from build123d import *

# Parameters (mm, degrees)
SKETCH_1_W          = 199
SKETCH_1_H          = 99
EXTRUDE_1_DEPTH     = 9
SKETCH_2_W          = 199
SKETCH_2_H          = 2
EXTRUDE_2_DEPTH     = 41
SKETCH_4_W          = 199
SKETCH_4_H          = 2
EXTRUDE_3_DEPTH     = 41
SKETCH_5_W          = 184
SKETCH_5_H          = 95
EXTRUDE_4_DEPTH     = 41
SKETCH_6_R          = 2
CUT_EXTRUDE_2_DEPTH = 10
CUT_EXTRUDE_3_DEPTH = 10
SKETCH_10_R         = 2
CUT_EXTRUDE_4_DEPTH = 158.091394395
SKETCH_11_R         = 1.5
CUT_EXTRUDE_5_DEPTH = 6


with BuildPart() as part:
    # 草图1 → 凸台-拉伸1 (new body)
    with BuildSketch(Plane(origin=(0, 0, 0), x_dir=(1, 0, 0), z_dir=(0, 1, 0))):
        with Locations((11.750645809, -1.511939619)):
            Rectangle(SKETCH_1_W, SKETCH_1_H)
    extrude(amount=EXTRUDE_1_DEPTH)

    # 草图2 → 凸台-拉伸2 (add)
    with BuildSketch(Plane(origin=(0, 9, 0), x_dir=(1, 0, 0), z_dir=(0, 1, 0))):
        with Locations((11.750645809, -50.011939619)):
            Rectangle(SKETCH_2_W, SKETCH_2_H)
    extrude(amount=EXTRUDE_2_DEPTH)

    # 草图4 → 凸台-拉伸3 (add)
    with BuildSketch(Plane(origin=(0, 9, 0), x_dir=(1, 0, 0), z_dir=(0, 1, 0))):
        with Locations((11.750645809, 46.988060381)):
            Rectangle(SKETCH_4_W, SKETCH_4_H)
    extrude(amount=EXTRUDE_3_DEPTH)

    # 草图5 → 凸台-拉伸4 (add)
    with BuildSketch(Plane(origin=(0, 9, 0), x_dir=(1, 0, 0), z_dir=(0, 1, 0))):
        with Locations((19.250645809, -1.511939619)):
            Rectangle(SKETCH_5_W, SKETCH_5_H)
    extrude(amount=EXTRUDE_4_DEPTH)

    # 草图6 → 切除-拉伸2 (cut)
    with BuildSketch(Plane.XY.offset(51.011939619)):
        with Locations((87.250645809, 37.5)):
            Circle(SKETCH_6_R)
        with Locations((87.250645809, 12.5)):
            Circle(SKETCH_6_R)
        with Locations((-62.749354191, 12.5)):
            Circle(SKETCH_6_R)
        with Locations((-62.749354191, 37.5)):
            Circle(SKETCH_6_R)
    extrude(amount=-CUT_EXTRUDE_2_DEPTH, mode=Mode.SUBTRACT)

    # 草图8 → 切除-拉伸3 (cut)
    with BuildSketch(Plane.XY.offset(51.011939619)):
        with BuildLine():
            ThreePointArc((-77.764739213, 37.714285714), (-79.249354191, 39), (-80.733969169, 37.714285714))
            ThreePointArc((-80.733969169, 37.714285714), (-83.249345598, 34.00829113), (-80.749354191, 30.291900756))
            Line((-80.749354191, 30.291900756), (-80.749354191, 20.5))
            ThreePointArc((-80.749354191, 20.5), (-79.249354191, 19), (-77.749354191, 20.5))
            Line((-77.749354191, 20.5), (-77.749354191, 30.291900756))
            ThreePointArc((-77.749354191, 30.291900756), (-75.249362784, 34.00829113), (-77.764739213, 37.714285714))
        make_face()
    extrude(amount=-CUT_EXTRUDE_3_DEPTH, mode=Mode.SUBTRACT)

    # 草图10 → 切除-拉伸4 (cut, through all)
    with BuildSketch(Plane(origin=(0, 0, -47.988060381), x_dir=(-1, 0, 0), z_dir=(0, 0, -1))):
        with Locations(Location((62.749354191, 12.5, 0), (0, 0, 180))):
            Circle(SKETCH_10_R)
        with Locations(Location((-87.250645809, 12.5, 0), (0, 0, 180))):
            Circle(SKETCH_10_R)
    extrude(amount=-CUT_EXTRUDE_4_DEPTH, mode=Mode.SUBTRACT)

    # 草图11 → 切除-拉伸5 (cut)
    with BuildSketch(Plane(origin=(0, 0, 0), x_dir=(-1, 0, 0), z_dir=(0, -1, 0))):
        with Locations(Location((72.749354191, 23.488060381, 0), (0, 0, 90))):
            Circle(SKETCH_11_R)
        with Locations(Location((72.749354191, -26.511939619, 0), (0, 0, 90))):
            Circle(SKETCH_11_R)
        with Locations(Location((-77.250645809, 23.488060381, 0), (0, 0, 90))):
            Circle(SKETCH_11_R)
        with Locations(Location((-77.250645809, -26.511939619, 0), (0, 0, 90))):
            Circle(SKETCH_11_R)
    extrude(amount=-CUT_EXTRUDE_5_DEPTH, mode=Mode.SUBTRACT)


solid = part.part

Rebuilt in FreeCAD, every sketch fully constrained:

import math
import FreeCAD as App
import Part
import Sketcher
Q = App.Units.Quantity

doc = App.newDocument("Part")
body = doc.addObject("PartDesign::Body", "Body")

sketch1 = body.newObject("Sketcher::SketchObject", "Sketch")
sketch1.AttachmentSupport = (doc.getObject("XZ_Plane"), [""])
sketch1.MapMode = "FlatFace"
sketch1.addGeometry([
    Part.LineSegment(App.Vector(-88, -48, 0), App.Vector(-88, 51, 0)),
    Part.LineSegment(App.Vector(-88, 51, 0), App.Vector(111, 51, 0)),
    Part.LineSegment(App.Vector(111, 51, 0), App.Vector(111, -48, 0)),
    Part.LineSegment(App.Vector(111, -48, 0), App.Vector(-88, -48, 0)),
], False)
sketch1.addConstraint([
    Sketcher.Constraint("Coincident", 0, 2, 1, 1),
    Sketcher.Constraint("Coincident", 1, 2, 2, 1),
    Sketcher.Constraint("Coincident", 2, 2, 3, 1),
    Sketcher.Constraint("Coincident", 3, 2, 0, 1),
    Sketcher.Constraint("Vertical", 0),
    Sketcher.Constraint("Horizontal", 1),
    Sketcher.Constraint("Vertical", 2),
    Sketcher.Constraint("Horizontal", 3),
    Sketcher.Constraint("DistanceX", 1, 1, 1, 2, Q("199 mm")),
    Sketcher.Constraint("DistanceY", 0, 1, 0, 2, Q("99 mm")),
    Sketcher.Constraint("DistanceY", -1, 1, 0, 2, Q("51.01194 mm")),
    Sketcher.Constraint("DistanceX", 0, 2, -1, 1, Q("87.749354 mm")),
])
pad1 = body.newObject("PartDesign::Pad", "Pad")
pad1.Profile = sketch1
pad1.Length = 9
pad1.Reversed = True

sketch2 = body.newObject("Sketcher::SketchObject", "Sketch001")
sketch2.AttachmentSupport = (doc.getObject("XZ_Plane"), [""])
sketch2.MapMode = "FlatFace"
sketch2.AttachmentOffset = App.Placement(App.Vector(0, 0, -9), App.Rotation())
sketch2.addGeometry([
    Part.LineSegment(App.Vector(-87.7, 49, 0), App.Vector(-87.7, 51, 0)),
    Part.LineSegment(App.Vector(-87.7, 51, 0), App.Vector(111.3, 51, 0)),
    Part.LineSegment(App.Vector(111.3, 51, 0), App.Vector(111.3, 49, 0)),
    Part.LineSegment(App.Vector(111.3, 49, 0), App.Vector(-87.7, 49, 0)),
], False)
sketch2.addConstraint([
    Sketcher.Constraint("Coincident", 0, 2, 1, 1),
    Sketcher.Constraint("Coincident", 1, 2, 2, 1),
    Sketcher.Constraint("Coincident", 2, 2, 3, 1),
    Sketcher.Constraint("Coincident", 3, 2, 0, 1),
    Sketcher.Constraint("Vertical", 0),
    Sketcher.Constraint("Horizontal", 1),
    Sketcher.Constraint("Vertical", 2),
    Sketcher.Constraint("Horizontal", 3),
    Sketcher.Constraint("DistanceX", 1, 1, 1, 2, Q("199 mm")),
    Sketcher.Constraint("DistanceY", 0, 1, 0, 2, Q("2 mm")),
    Sketcher.Constraint("DistanceY", -1, 1, 0, 2, Q("51.01194 mm")),
    Sketcher.Constraint("DistanceX", 0, 2, -1, 1, Q("87.749354 mm")),
])
pad2 = body.newObject("PartDesign::Pad", "Pad001")
pad2.Profile = sketch2
pad2.Length = 41
pad2.Reversed = True

sketch3 = body.newObject("Sketcher::SketchObject", "Sketch002")
sketch3.AttachmentSupport = (doc.getObject("XZ_Plane"), [""])
sketch3.MapMode = "FlatFace"
sketch3.AttachmentOffset = App.Placement(App.Vector(0, 0, -9), App.Rotation())
sketch3.addGeometry([
    Part.LineSegment(App.Vector(-87.7, -48, 0), App.Vector(-87.7, -46, 0)),
    Part.LineSegment(App.Vector(-87.7, -46, 0), App.Vector(111.3, -46, 0)),
    Part.LineSegment(App.Vector(111.3, -46, 0), App.Vector(111.3, -48, 0)),
    Part.LineSegment(App.Vector(111.3, -48, 0), App.Vector(-87.7, -48, 0)),
], False)
sketch3.addConstraint([
    Sketcher.Constraint("Coincident", 0, 2, 1, 1),
    Sketcher.Constraint("Coincident", 1, 2, 2, 1),
    Sketcher.Constraint("Coincident", 2, 2, 3, 1),
    Sketcher.Constraint("Coincident", 3, 2, 0, 1),
    Sketcher.Constraint("Vertical", 0),
    Sketcher.Constraint("Horizontal", 1),
    Sketcher.Constraint("Vertical", 2),
    Sketcher.Constraint("Horizontal", 3),
    Sketcher.Constraint("DistanceX", 1, 1, 1, 2, Q("199 mm")),
    Sketcher.Constraint("DistanceY", 0, 1, 0, 2, Q("2 mm")),
    Sketcher.Constraint("DistanceY", 0, 2, -1, 1, Q("45.98806 mm")),
    Sketcher.Constraint("DistanceX", 0, 2, -1, 1, Q("87.749354 mm")),
])
pad3 = body.newObject("PartDesign::Pad", "Pad002")
pad3.Profile = sketch3
pad3.Length = 41
pad3.Reversed = True

sketch4 = body.newObject("Sketcher::SketchObject", "Sketch003")
sketch4.AttachmentSupport = (doc.getObject("XZ_Plane"), [""])
sketch4.MapMode = "FlatFace"
sketch4.AttachmentOffset = App.Placement(App.Vector(0, 0, -9), App.Rotation())
sketch4.addGeometry([
    Part.LineSegment(App.Vector(-73, -46, 0), App.Vector(-73, 49, 0)),
    Part.LineSegment(App.Vector(-73, 49, 0), App.Vector(111, 49, 0)),
    Part.LineSegment(App.Vector(111, 49, 0), App.Vector(111, -46, 0)),
    Part.LineSegment(App.Vector(111, -46, 0), App.Vector(-73, -46, 0)),
], False)
sketch4.addConstraint([
    Sketcher.Constraint("Coincident", 0, 2, 1, 1),
    Sketcher.Constraint("Coincident", 1, 2, 2, 1),
    Sketcher.Constraint("Coincident", 2, 2, 3, 1),
    Sketcher.Constraint("Coincident", 3, 2, 0, 1),
    Sketcher.Constraint("Vertical", 0),
    Sketcher.Constraint("Horizontal", 1),
    Sketcher.Constraint("Vertical", 2),
    Sketcher.Constraint("Horizontal", 3),
    Sketcher.Constraint("DistanceX", 1, 1, 1, 2, Q("184 mm")),
    Sketcher.Constraint("DistanceY", 0, 1, 0, 2, Q("95 mm")),
    Sketcher.Constraint("DistanceY", -1, 1, 0, 2, Q("49.01194 mm")),
    Sketcher.Constraint("DistanceX", 0, 2, -1, 1, Q("72.749354 mm")),
])
pad4 = body.newObject("PartDesign::Pad", "Pad003")
pad4.Profile = sketch4
pad4.Length = 41
pad4.Reversed = True

sketch5 = body.newObject("Sketcher::SketchObject", "Sketch004")
sketch5.AttachmentSupport = (doc.getObject("XY_Plane"), [""])
sketch5.MapMode = "FlatFace"
sketch5.AttachmentOffset = App.Placement(App.Vector(0, 0, 51.01194), App.Rotation())
sketch5.addGeometry([
    Part.Circle(App.Vector(87.3, 37.5, 0), App.Vector(0, 0, 1), 2),
    Part.Circle(App.Vector(87.3, 12.5, 0), App.Vector(0, 0, 1), 2),
    Part.Circle(App.Vector(-62.7, 12.5, 0), App.Vector(0, 0, 1), 2),
    Part.Circle(App.Vector(-62.7, 37.5, 0), App.Vector(0, 0, 1), 2),
], False)
sketch5.addConstraint([
    Sketcher.Constraint("Equal", 0, 1),
    Sketcher.Constraint("Equal", 1, 2),
    Sketcher.Constraint("Equal", 2, 3),
    Sketcher.Constraint("Horizontal", 1, 3, 2, 3),
    Sketcher.Constraint("Horizontal", 0, 3, 3, 3),
    Sketcher.Constraint("Vertical", 0, 3, 1, 3),
    Sketcher.Constraint("Vertical", 2, 3, 3, 3),
    Sketcher.Constraint("Diameter", 0, Q("4 mm")),
    Sketcher.Constraint("DistanceY", 1, 3, 0, 3, Q("25 mm")),
    Sketcher.Constraint("DistanceX", 2, 3, 1, 3, Q("150 mm")),
    Sketcher.Constraint("DistanceY", -1, 1, 0, 3, Q("37.5 mm")),
    Sketcher.Constraint("DistanceX", -1, 1, 0, 3, Q("87.250646 mm")),
])
pocket1 = body.newObject("PartDesign::Pocket", "Pocket")
pocket1.Profile = sketch5
pocket1.Length = 10

sketch6 = body.newObject("Sketcher::SketchObject", "Sketch005")
sketch6.AttachmentSupport = (doc.getObject("XY_Plane"), [""])
sketch6.MapMode = "FlatFace"
sketch6.AttachmentOffset = App.Placement(App.Vector(0, 0, 51.01194), App.Rotation())
sketch6.addGeometry([
    Part.ArcOfCircle(Part.Circle(App.Vector(-79.2, 37.5, 0), App.Vector(0, 0, 1), 1.5), math.radians(8), math.radians(172)),
    Part.ArcOfCircle(Part.Circle(App.Vector(-79.2, 34, 0), App.Vector(0, 0, 1), 4), math.radians(112), math.radians(248)),
    Part.LineSegment(App.Vector(-80.7, 30.3, 0), App.Vector(-80.7, 20.5, 0)),
    Part.ArcOfCircle(Part.Circle(App.Vector(-79.2, 20.5, 0), App.Vector(0, 0, 1), 1.5), math.radians(180), math.radians(360)),
    Part.LineSegment(App.Vector(-77.7, 20.5, 0), App.Vector(-77.7, 30.3, 0)),
    Part.ArcOfCircle(Part.Circle(App.Vector(-79.2, 34, 0), App.Vector(0, 0, 1), 4), math.radians(-68), math.radians(68)),
], False)
sketch6.addConstraint([
    Sketcher.Constraint("Coincident", 0, 2, 1, 1),
    Sketcher.Constraint("Coincident", 1, 2, 2, 1),
    Sketcher.Constraint("Tangent", 2, 2, 3, 1),
    Sketcher.Constraint("Tangent", 3, 2, 4, 1),
    Sketcher.Constraint("Coincident", 4, 2, 5, 1),
    Sketcher.Constraint("Coincident", 5, 2, 0, 1),
    Sketcher.Constraint("Vertical", 2),
    Sketcher.Constraint("Vertical", 4),
    Sketcher.Constraint("Coincident", 5, 3, 1, 3),
    Sketcher.Constraint("Equal", 0, 3),
    Sketcher.Constraint("Equal", 1, 5),
    Sketcher.Constraint("Horizontal", 1, 2, 4, 2),
    Sketcher.Constraint("Horizontal", 0, 2, 5, 2),
    Sketcher.Constraint("Radius", 1, Q("4 mm")),
    Sketcher.Constraint("Radius", 0, Q("1.5 mm")),
    Sketcher.Constraint("DistanceY", -1, 1, 1, 3, Q("34 mm")),
    Sketcher.Constraint("DistanceY", 3, 3, 0, 3, Q("17 mm")),
    Sketcher.Constraint("DistanceY", -1, 1, 0, 3, Q("37.5 mm")),
    Sketcher.Constraint("DistanceX", 0, 2, -1, 1, Q("80.733969 mm")),
])
pocket2 = body.newObject("PartDesign::Pocket", "Pocket001")
pocket2.Profile = sketch6
pocket2.Length = 10

sketch7 = body.newObject("Sketcher::SketchObject", "Sketch006")
sketch7.AttachmentSupport = (doc.getObject("XY_Plane"), [""])
sketch7.MapMode = "FlatFace"
sketch7.AttachmentOffset = App.Placement(App.Vector(0, 0, -47.98806), App.Rotation())
sketch7.addGeometry([
    Part.Circle(App.Vector(-62.7, 12.5, 0), App.Vector(0, 0, 1), 2),
    Part.Circle(App.Vector(87.3, 12.5, 0), App.Vector(0, 0, 1), 2),
], False)
sketch7.addConstraint([
    Sketcher.Constraint("Equal", 0, 1),
    Sketcher.Constraint("Horizontal", 0, 3, 1, 3),
    Sketcher.Constraint("Diameter", 0, Q("4 mm")),
    Sketcher.Constraint("DistanceX", 0, 3, 1, 3, Q("150 mm")),
    Sketcher.Constraint("DistanceY", -1, 1, 0, 3, Q("12.5 mm")),
    Sketcher.Constraint("DistanceX", 0, 3, -1, 1, Q("62.749354 mm")),
])
pocket3 = body.newObject("PartDesign::Pocket", "Pocket002")
pocket3.Profile = sketch7
pocket3.Type = "ThroughAll"
pocket3.Reversed = True

sketch8 = body.newObject("Sketcher::SketchObject", "Sketch007")
sketch8.AttachmentSupport = (doc.getObject("XZ_Plane"), [""])
sketch8.MapMode = "FlatFace"
sketch8.addGeometry([
    Part.Circle(App.Vector(-72.7, -23.5, 0), App.Vector(0, 0, 1), 1.5),
    Part.Circle(App.Vector(-72.7, 26.5, 0), App.Vector(0, 0, 1), 1.5),
    Part.Circle(App.Vector(77.3, -23.5, 0), App.Vector(0, 0, 1), 1.5),
    Part.Circle(App.Vector(77.3, 26.5, 0), App.Vector(0, 0, 1), 1.5),
], False)
sketch8.addConstraint([
    Sketcher.Constraint("Equal", 0, 1),
    Sketcher.Constraint("Equal", 1, 2),
    Sketcher.Constraint("Equal", 2, 3),
    Sketcher.Constraint("Horizontal", 0, 3, 2, 3),
    Sketcher.Constraint("Horizontal", 1, 3, 3, 3),
    Sketcher.Constraint("Vertical", 0, 3, 1, 3),
    Sketcher.Constraint("Vertical", 2, 3, 3, 3),
    Sketcher.Constraint("Diameter", 0, Q("3 mm")),
    Sketcher.Constraint("DistanceY", 0, 3, 1, 3, Q("50 mm")),
    Sketcher.Constraint("DistanceX", 0, 3, 2, 3, Q("150 mm")),
    Sketcher.Constraint("DistanceY", 0, 3, -1, 1, Q("23.48806 mm")),
    Sketcher.Constraint("DistanceX", 0, 3, -1, 1, Q("72.749354 mm")),
])
pocket4 = body.newObject("PartDesign::Pocket", "Pocket003")
pocket4.Profile = sketch8
pocket4.Length = 6

doc.recompute()
